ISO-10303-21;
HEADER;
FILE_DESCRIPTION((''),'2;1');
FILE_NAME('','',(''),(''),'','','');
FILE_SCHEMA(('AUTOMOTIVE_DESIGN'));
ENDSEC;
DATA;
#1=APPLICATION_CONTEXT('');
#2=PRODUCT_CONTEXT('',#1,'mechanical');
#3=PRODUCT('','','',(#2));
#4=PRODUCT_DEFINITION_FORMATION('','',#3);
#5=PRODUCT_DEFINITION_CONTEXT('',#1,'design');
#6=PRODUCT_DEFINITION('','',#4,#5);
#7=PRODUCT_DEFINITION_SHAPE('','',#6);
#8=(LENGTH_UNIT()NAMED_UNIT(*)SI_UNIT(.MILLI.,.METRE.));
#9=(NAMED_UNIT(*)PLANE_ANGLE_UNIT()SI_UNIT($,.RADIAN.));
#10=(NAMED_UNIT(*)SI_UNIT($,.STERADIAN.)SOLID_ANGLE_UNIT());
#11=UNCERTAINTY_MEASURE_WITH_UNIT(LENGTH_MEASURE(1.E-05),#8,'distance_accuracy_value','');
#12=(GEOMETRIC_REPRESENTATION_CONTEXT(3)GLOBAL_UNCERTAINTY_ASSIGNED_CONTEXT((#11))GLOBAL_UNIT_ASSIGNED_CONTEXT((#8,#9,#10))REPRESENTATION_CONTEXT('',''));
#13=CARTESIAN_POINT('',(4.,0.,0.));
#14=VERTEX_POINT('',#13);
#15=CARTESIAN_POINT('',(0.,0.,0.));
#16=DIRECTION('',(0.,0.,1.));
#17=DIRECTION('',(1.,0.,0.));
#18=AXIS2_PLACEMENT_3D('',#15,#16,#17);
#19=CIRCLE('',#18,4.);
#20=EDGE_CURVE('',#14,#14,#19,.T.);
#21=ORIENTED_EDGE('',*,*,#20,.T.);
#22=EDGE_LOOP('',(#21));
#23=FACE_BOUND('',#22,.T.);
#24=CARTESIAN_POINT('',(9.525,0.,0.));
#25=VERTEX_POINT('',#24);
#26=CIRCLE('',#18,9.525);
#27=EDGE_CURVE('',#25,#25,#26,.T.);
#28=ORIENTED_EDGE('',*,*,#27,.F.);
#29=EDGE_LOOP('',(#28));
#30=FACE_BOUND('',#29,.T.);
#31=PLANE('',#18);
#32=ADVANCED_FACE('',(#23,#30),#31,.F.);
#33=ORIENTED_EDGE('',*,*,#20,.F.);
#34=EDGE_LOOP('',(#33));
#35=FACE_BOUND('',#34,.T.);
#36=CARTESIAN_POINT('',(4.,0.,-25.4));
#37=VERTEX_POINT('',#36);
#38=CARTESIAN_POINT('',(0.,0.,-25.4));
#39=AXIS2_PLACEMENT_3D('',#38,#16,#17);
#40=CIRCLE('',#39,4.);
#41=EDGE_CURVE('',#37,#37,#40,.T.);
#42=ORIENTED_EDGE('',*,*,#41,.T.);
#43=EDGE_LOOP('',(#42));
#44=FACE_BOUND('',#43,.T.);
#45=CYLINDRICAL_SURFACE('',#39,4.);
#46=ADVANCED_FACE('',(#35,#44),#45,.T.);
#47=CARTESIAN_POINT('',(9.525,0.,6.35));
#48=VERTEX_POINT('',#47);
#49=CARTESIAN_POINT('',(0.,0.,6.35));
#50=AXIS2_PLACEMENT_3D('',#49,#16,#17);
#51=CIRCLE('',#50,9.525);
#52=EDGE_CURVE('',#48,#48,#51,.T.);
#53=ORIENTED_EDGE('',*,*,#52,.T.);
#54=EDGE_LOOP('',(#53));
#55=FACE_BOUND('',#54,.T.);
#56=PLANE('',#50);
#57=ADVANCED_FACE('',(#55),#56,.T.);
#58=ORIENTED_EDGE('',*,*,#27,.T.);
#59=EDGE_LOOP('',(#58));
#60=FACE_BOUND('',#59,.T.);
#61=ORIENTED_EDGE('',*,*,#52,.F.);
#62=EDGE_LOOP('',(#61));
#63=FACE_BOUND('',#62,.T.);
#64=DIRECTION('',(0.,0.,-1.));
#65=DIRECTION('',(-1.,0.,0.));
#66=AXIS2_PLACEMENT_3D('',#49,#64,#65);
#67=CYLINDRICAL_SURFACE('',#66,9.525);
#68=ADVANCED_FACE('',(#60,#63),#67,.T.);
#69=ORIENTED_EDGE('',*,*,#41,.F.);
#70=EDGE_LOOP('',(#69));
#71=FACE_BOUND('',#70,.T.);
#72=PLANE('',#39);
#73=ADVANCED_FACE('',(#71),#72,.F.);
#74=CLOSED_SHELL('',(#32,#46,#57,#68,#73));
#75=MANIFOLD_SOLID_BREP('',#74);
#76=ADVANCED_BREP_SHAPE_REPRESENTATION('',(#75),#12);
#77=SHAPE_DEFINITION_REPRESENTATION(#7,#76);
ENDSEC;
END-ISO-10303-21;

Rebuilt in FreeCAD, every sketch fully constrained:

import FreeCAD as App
import Part
import Sketcher

V = App.Vector
Q = App.Units.Quantity

doc = App.newDocument("Part")
body = doc.addObject("PartDesign::Body", "Body")

# Sketch on XY plane
sketch1 = body.newObject("Sketcher::SketchObject", "Sketch")
sketch1.AttachmentSupport = (doc.getObject("XY_Plane"), [""])
sketch1.MapMode = "FlatFace"
sketch1.addGeometry(Part.Circle(V(0, 0, 0), V(0, 0, 1), 10), False)
sketch1.addConstraint([
    Sketcher.Constraint("Coincident", 0, 3, -1, 1),
    Sketcher.Constraint("Diameter", 0, Q("0.75 in")),
])
pad1 = body.newObject("PartDesign::Pad", "Pad")
pad1.Profile = sketch1
pad1.Length = Q("0.25 in")

# Sketch on XY plane
sketch2 = body.newObject("Sketcher::SketchObject", "Sketch001")
sketch2.AttachmentSupport = (doc.getObject("XY_Plane"), [""])
sketch2.MapMode = "FlatFace"
sketch2.addGeometry(Part.Circle(V(0, 0, 0), V(0, 0, 1), 4), False)
sketch2.addConstraint([
    Sketcher.Constraint("Coincident", 0, 3, -1, 1),
    Sketcher.Constraint("Diameter", 0, 8.0),
])
pad2 = body.newObject("PartDesign::Pad", "Pad001")
pad2.Profile = sketch2
pad2.Length = Q("1 in")
pad2.Reversed = True

doc.recompute()
